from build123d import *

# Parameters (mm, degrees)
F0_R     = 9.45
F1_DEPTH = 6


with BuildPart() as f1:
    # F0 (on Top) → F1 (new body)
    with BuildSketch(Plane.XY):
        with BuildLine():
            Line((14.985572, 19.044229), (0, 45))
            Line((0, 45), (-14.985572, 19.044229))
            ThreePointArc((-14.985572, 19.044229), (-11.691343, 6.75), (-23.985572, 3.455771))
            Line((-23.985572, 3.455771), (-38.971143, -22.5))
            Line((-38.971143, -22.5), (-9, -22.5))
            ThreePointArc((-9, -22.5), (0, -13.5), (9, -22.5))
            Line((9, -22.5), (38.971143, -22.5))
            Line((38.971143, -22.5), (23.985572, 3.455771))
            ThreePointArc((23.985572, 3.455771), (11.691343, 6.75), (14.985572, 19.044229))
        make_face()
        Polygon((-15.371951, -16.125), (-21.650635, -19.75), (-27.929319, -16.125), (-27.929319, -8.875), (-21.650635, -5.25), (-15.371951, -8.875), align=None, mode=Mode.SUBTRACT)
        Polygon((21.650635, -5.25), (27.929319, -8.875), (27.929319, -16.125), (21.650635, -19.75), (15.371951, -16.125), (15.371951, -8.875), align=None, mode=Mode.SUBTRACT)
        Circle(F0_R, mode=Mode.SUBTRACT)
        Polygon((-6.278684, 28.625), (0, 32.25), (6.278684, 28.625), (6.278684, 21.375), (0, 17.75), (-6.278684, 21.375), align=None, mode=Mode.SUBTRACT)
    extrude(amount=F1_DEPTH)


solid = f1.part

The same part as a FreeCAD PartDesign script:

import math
import FreeCAD as App
import Part
import Sketcher
from FreeCAD import Vector
Q = App.Units.Quantity

doc = App.newDocument("Part")
body = doc.addObject("PartDesign::Body", "Body")

sketch1 = body.newObject("Sketcher::SketchObject", "Sketch")
sketch1.AttachmentSupport = (doc.getObject("XY_Plane"), [""])
sketch1.MapMode = "FlatFace"
sketch1.addGeometry([
    Part.LineSegment(Vector(15, 19, 0), Vector(0, 45, 0)),
    Part.LineSegment(Vector(0, 45, 0), Vector(-15, 19, 0)),
    Part.ArcOfCircle(Part.Circle(Vector(-19, 11, 0), Vector(0, 0, 1), 9), math.radians(-120), math.radians(60)),
    Part.LineSegment(Vector(-24, 3, 0), Vector(-39, -22, 0)),
    Part.LineSegment(Vector(-39, -22, 0), Vector(-9, -22, 0)),
    Part.ArcOfCircle(Part.Circle(Vector(0, -22, 0), Vector(0, 0, 1), 9), math.radians(0), math.radians(180)),
    Part.LineSegment(Vector(9, -22, 0), Vector(39, -22, 0)),
    Part.LineSegment(Vector(39, -22, 0), Vector(24, 3, 0)),
    Part.ArcOfCircle(Part.Circle(Vector(19, 11, 0), Vector(0, 0, 1), 9), math.radians(120), math.radians(300)),
    Part.LineSegment(Vector(-15, -9, 0), Vector(-15, -16, 0)),
    Part.LineSegment(Vector(-15, -16, 0), Vector(-22, -20, 0)),
    Part.LineSegment(Vector(-22, -20, 0), Vector(-28, -16, 0)),
    Part.LineSegment(Vector(-28, -16, 0), Vector(-28, -9, 0)),
    Part.LineSegment(Vector(-28, -9, 0), Vector(-22, -5, 0)),
    Part.LineSegment(Vector(-22, -5, 0), Vector(-15, -9, 0)),
    Part.LineSegment(Vector(15, -9, 0), Vector(22, -5, 0)),
    Part.LineSegment(Vector(22, -5, 0), Vector(28, -9, 0)),
    Part.LineSegment(Vector(28, -9, 0), Vector(28, -16, 0)),
    Part.LineSegment(Vector(28, -16, 0), Vector(22, -20, 0)),
    Part.LineSegment(Vector(22, -20, 0), Vector(15, -16, 0)),
    Part.LineSegment(Vector(15, -16, 0), Vector(15, -9, 0)),
    Part.Circle(Vector(0, 0, 0), Vector(0, 0, 1), 9),
    Part.LineSegment(Vector(-6, 21, 0), Vector(-6, 29, 0)),
    Part.LineSegment(Vector(-6, 29, 0), Vector(0, 32, 0)),
    Part.LineSegment(Vector(0, 32, 0), Vector(6, 29, 0)),
    Part.LineSegment(Vector(6, 29, 0), Vector(6, 21, 0)),
    Part.LineSegment(Vector(6, 21, 0), Vector(0, 18, 0)),
    Part.LineSegment(Vector(0, 18, 0), Vector(-6, 21, 0)),
], False)
sketch1.addConstraint([
    Sketcher.Constraint("Coincident", 0, 2, 1, 1),
    Sketcher.Constraint("Coincident", 1, 2, 2, 2),
    Sketcher.Constraint("Coincident", 2, 1, 3, 1),
    Sketcher.Constraint("Coincident", 3, 2, 4, 1),
    Sketcher.Constraint("Coincident", 4, 2, 5, 2),
    Sketcher.Constraint("Coincident", 5, 1, 6, 1),
    Sketcher.Constraint("Coincident", 6, 2, 7, 1),
    Sketcher.Constraint("Coincident", 7, 2, 8, 2),
    Sketcher.Constraint("Coincident", 8, 1, 0, 1),
    Sketcher.Constraint("Coincident", 9, 2, 10, 1),
    Sketcher.Constraint("Coincident", 10, 2, 11, 1),
    Sketcher.Constraint("Coincident", 11, 2, 12, 1),
    Sketcher.Constraint("Coincident", 12, 2, 13, 1),
    Sketcher.Constraint("Coincident", 13, 2, 14, 1),
    Sketcher.Constraint("Coincident", 14, 2, 9, 1),
    Sketcher.Constraint("Coincident", 15, 2, 16, 1),
    Sketcher.Constraint("Coincident", 16, 2, 17, 1),
    Sketcher.Constraint("Coincident", 17, 2, 18, 1),
    Sketcher.Constraint("Coincident", 18, 2, 19, 1),
    Sketcher.Constraint("Coincident", 19, 2, 20, 1),
    Sketcher.Constraint("Coincident", 20, 2, 15, 1),
    Sketcher.Constraint("Coincident", 22, 2, 23, 1),
    Sketcher.Constraint("Coincident", 23, 2, 24, 1),
    Sketcher.Constraint("Coincident", 24, 2, 25, 1),
    Sketcher.Constraint("Coincident", 25, 2, 26, 1),
    Sketcher.Constraint("Coincident", 26, 2, 27, 1),
    Sketcher.Constraint("Coincident", 27, 2, 22, 1),
    Sketcher.Constraint("Horizontal", 4),
    Sketcher.Constraint("Horizontal", 6),
    Sketcher.Constraint("Vertical", 9),
    Sketcher.Constraint("Vertical", 12),
    Sketcher.Constraint("Vertical", 17),
    Sketcher.Constraint("Vertical", 20),
    Sketcher.Constraint("Vertical", 22),
    Sketcher.Constraint("Vertical", 25),
    Sketcher.Constraint("Coincident", 21, 3, -1, 1),
    Sketcher.Constraint("Equal", 2, 5),
    Sketcher.Constraint("Equal", 5, 8),
    Sketcher.Constraint("Symmetric", 2, 3, 8, 3, -2),
    Sketcher.Constraint("Symmetric", 4, 2, 5, 1, -2),
    Sketcher.Constraint("Symmetric", 13, 2, 15, 2, -2),
    Sketcher.Constraint("Symmetric", 12, 2, 16, 2, -2),
    Sketcher.Constraint("Symmetric", 10, 2, 18, 2, -2),
    Sketcher.Constraint("Symmetric", 9, 2, 19, 2, -2),
    Sketcher.Constraint("Symmetric", 22, 2, 24, 2, -2),
    Sketcher.Constraint("PointOnObject", 0, 2, -2),
    Sketcher.Constraint("PointOnObject", 23, 2, -2),
    Sketcher.Constraint("PointOnObject", 26, 2, -2),
    Sketcher.Constraint("Parallel", 1, 3),
    Sketcher.Constraint("Parallel", 0, 7),
    Sketcher.Constraint("Perpendicular", 7, 10),
    Sketcher.Constraint("Perpendicular", 3, 11),
    Sketcher.Constraint("Parallel", 10, 13),
    Sketcher.Constraint("Parallel", 11, 14),
    Sketcher.Constraint("Parallel", 13, 15),
    Sketcher.Constraint("Parallel", 14, 16),
    Sketcher.Constraint("Parallel", 15, 18),
    Sketcher.Constraint("Parallel", 18, 23),
    Sketcher.Constraint("Parallel", 23, 26),
    Sketcher.Constraint("Parallel", 24, 27),
    Sketcher.Constraint("Horizontal", 5, 3, 3, 2),
    Sketcher.Constraint("Horizontal", 2, 1, 7, 2),
    Sketcher.Constraint("Horizontal", 9, 2, 11, 2),
    Sketcher.Constraint("Horizontal", 12, 2, 14, 2),
    Sketcher.Constraint("Equal", 20, 22),
    Sketcher.Constraint("Equal", 1, 3),
    Sketcher.Constraint("Equal", 19, 23),
    Sketcher.Constraint("Radius", 2, 9.0),
    Sketcher.Constraint("Diameter", 21, 18.9),
    Sketcher.Constraint("Angle", 0, Q("120.000001 deg")),
    Sketcher.Constraint("DistanceY", -1, 1, 0, 2, 45.0),
    Sketcher.Constraint("DistanceX", 2, 1, 1, 2, 9.0),
    Sketcher.Constraint("DistanceY", 2, 3, 23, 2, 21.0),
    Sketcher.Constraint("DistanceY", 9, 2, 9, 1, 7.25),
    Sketcher.Constraint("DistanceY", 5, 3, -1, 1, 22.5),
    Sketcher.Constraint("DistanceX", 2, 3, 1, 2, 4.5),
    Sketcher.Constraint("DistanceY", 10, 2, 13, 2, 14.5),
    Sketcher.Constraint("DistanceY", 15, 2, 8, 3, 16.5),
    Sketcher.Constraint("DistanceX", 9, 2, -1, 1, 15.371951),
])
pad1 = body.newObject("PartDesign::Pad", "Pad")
pad1.Profile = sketch1
pad1.Length = 6

doc.recompute()
